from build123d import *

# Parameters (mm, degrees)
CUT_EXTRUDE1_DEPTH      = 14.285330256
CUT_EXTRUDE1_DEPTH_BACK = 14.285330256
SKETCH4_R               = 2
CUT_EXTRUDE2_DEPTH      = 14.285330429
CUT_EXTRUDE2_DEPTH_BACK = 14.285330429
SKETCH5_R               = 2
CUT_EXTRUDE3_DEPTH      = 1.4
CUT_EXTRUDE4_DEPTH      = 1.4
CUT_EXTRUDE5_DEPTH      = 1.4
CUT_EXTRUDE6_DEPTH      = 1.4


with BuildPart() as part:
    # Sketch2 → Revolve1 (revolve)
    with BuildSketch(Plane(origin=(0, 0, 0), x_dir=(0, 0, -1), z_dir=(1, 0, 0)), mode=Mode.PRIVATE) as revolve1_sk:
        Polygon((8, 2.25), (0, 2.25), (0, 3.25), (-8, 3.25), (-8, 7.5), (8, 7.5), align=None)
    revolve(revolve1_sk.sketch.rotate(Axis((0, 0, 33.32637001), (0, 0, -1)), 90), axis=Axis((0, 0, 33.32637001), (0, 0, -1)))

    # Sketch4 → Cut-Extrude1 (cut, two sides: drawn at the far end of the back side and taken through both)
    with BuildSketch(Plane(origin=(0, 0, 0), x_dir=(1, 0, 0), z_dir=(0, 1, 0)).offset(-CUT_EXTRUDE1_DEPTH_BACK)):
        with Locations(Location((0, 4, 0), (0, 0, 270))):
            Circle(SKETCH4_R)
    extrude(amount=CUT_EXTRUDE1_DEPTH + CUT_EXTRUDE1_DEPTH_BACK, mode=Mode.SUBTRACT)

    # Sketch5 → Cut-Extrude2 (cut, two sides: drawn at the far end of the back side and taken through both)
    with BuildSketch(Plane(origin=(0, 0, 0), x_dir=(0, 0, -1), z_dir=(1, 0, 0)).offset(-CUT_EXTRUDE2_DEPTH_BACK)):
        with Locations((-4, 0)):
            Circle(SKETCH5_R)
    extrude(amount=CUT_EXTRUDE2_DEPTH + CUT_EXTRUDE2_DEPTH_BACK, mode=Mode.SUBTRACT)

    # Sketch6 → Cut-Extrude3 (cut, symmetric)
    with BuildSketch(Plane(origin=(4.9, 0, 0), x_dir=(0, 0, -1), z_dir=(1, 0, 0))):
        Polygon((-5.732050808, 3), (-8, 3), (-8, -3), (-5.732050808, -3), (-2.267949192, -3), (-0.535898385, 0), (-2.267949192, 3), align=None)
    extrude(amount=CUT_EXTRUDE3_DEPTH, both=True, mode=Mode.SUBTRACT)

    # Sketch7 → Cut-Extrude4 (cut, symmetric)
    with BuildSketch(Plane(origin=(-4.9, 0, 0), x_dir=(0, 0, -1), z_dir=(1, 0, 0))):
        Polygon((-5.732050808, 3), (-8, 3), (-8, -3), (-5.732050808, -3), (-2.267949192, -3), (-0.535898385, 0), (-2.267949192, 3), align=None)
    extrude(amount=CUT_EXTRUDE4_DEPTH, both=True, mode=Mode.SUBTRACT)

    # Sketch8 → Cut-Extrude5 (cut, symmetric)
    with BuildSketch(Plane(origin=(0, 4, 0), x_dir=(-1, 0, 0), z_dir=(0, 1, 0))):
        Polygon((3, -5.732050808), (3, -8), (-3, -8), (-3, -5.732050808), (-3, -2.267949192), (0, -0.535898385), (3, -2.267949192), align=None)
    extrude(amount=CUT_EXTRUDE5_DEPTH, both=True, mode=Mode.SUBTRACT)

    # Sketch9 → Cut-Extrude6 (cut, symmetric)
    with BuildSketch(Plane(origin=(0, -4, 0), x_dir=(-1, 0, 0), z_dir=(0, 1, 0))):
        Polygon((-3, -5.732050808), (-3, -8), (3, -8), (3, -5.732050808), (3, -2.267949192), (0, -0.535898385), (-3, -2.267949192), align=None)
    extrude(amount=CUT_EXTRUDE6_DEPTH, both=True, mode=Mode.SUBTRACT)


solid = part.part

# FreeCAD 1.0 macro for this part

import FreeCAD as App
import Part
import Sketcher
from FreeCAD import Vector
Q = App.Units.Quantity


def add_polygon(sketch, points):
    """Adds a closed chain of lines whose ends are joined by coincident constraints."""
    first, n = sketch.GeometryCount, len(points)
    for a, b in zip(points, points[1:] + points[:1]):
        sketch.addGeometry(Part.LineSegment(App.Vector(*a, 0), App.Vector(*b, 0)), False)
    for i in range(n):
        sketch.addConstraint(Sketcher.Constraint("Coincident", first + i, 2, first + (i + 1) % n, 1))

doc = App.newDocument("Part")
body = doc.addObject("PartDesign::Body", "Body")

# Sketch on YZ plane
sketch1 = body.newObject("Sketcher::SketchObject", "Sketch")
sketch1.AttachmentSupport = (doc.getObject("YZ_Plane"), [""])
sketch1.MapMode = "FlatFace"
add_polygon(sketch1, [(2.2, 0), (2.2, -8), (7.5, -8), (7.5, 8), (3.2, 8), (3.2, 0)])  # lines 0-5
sketch1.addConstraint([
    Sketcher.Constraint("Vertical", 0),
    Sketcher.Constraint("Horizontal", 1),
    Sketcher.Constraint("Vertical", 2),
    Sketcher.Constraint("Horizontal", 3),
    Sketcher.Constraint("Vertical", 4),
    Sketcher.Constraint("Horizontal", 5),
    Sketcher.Constraint("PointOnObject", 4, 2, -1),
    Sketcher.Constraint("Equal", 0, 4),
    Sketcher.Constraint("DistanceX", 5, 2, 5, 1, 1.0),
    Sketcher.Constraint("DistanceY", 0, 2, 0, 1, 8.0),
    Sketcher.Constraint("DistanceX", 1, 1, 1, 2, 5.25),
    Sketcher.Constraint("DistanceX", -1, 1, 1, 2, 7.5),
])
revolution = body.newObject("PartDesign::Revolution", "Revolution")
revolution.Profile = sketch1
revolution.ReferenceAxis = (sketch1, ["V_Axis"])
revolution.Angle = 360

# Sketch on XZ plane
sketch2 = body.newObject("Sketcher::SketchObject", "Sketch001")
sketch2.AttachmentSupport = (doc.getObject("XZ_Plane"), [""])
sketch2.MapMode = "FlatFace"
sketch2.addGeometry(Part.Circle(Vector(0, -4, 0), Vector(0, 0, 1), 2), False)
sketch2.addConstraint([
    Sketcher.Constraint("PointOnObject", 0, 3, -2),
    Sketcher.Constraint("Diameter", 0, 4.0),
    Sketcher.Constraint("DistanceY", 0, 3, -1, 1, 4.0),
])
pocket1 = body.newObject("PartDesign::Pocket", "Pocket")
pocket1.Profile = sketch2
pocket1.Type = "ThroughAll"
pocket1.Midplane = True

# Sketch on YZ plane
sketch3 = body.newObject("Sketcher::SketchObject", "Sketch002")
sketch3.AttachmentSupport = (doc.getObject("YZ_Plane"), [""])
sketch3.MapMode = "FlatFace"
sketch3.addGeometry(Part.Circle(Vector(0, 4, 0), Vector(0, 0, 1), 2), False)
sketch3.addConstraint([
    Sketcher.Constraint("PointOnObject", 0, 3, -2),
    Sketcher.Constraint("Diameter", 0, 4.0),
    Sketcher.Constraint("DistanceY", -1, 1, 0, 3, 4.0),
])
pocket2 = body.newObject("PartDesign::Pocket", "Pocket001")
pocket2.Profile = sketch3
pocket2.Type = "ThroughAll"
pocket2.Midplane = True

# Sketch on YZ plane
sketch4 = body.newObject("Sketcher::SketchObject", "Sketch003")
sketch4.AttachmentSupport = (doc.getObject("YZ_Plane"), [""])
sketch4.MapMode = "FlatFace"
sketch4.AttachmentOffset = App.Placement(Vector(0, 0, 4.9), App.Rotation())
add_polygon(sketch4, [(3, 8), (-3, 8), (-3, 2.3), (0, 0.5), (3, 2.3)])  # lines 0-4
sketch4.addConstraint([
    Sketcher.Constraint("Horizontal", 0),
    Sketcher.Constraint("Vertical", 1),
    Sketcher.Constraint("Vertical", 4),
    Sketcher.Constraint("Symmetric", 1, 2, 3, 2, -2),
    Sketcher.Constraint("PointOnObject", 2, 2, -2),
    Sketcher.Constraint("DistanceX", 0, 2, 0, 1, 6.0),
    Sketcher.Constraint("Angle", 2, Q("-30 deg")),
    Sketcher.Constraint("DistanceY", -1, 1, 0, 2, 8.0),
    Sketcher.Constraint("DistanceY", 1, 2, 1, 1, 5.732051),
])
pocket3 = body.newObject("PartDesign::Pocket", "Pocket002")
pocket3.Profile = sketch4
pocket3.Length = 2.8
pocket3.Midplane = True

# Sketch on YZ plane
sketch5 = body.newObject("Sketcher::SketchObject", "Sketch004")
sketch5.AttachmentSupport = (doc.getObject("YZ_Plane"), [""])
sketch5.MapMode = "FlatFace"
sketch5.AttachmentOffset = App.Placement(Vector(0, 0, -4.9), App.Rotation())
add_polygon(sketch5, [(3, 8), (-3, 8), (-3, 2.3), (0, 0.5), (3, 2.3)])  # lines 0-4
sketch5.addConstraint([
    Sketcher.Constraint("Horizontal", 0),
    Sketcher.Constraint("Vertical", 1),
    Sketcher.Constraint("Vertical", 4),
    Sketcher.Constraint("Symmetric", 1, 2, 3, 2, -2),
    Sketcher.Constraint("PointOnObject", 2, 2, -2),
    Sketcher.Constraint("DistanceX", 0, 2, 0, 1, 6.0),
    Sketcher.Constraint("Angle", 2, Q("-30 deg")),
    Sketcher.Constraint("DistanceY", -1, 1, 0, 2, 8.0),
    Sketcher.Constraint("DistanceY", 1, 2, 1, 1, 5.732051),
])
pocket4 = body.newObject("PartDesign::Pocket", "Pocket003")
pocket4.Profile = sketch5
pocket4.Length = 2.8
pocket4.Midplane = True

# Sketch on XZ plane
sketch6 = body.newObject("Sketcher::SketchObject", "Sketch005")
sketch6.AttachmentSupport = (doc.getObject("XZ_Plane"), [""])
sketch6.MapMode = "FlatFace"
sketch6.AttachmentOffset = App.Placement(Vector(0, 0, -4), App.Rotation())
add_polygon(sketch6, [(-3, -8), (-3, -2.3), (0, -0.5), (3, -2.3), (3, -8)])  # lines 0-4
sketch6.addConstraint([
    Sketcher.Constraint("Vertical", 0),
    Sketcher.Constraint("Vertical", 3),
    Sketcher.Constraint("Horizontal", 4),
    Sketcher.Constraint("Symmetric", 0, 2, 2, 2, -2),
    Sketcher.Constraint("PointOnObject", 1, 2, -2),
    Sketcher.Constraint("DistanceX", 4, 2, 4, 1, 6.0),
    Sketcher.Constraint("Angle", 1, Q("30 deg")),
    Sketcher.Constraint("DistanceY", 3, 2, -1, 1, 8.0),
    Sketcher.Constraint("DistanceY", 0, 1, 0, 2, 5.732051),
])
pocket5 = body.newObject("PartDesign::Pocket", "Pocket004")
pocket5.Profile = sketch6
pocket5.Length = 2.8
pocket5.Midplane = True

# Sketch on XZ plane
sketch7 = body.newObject("Sketcher::SketchObject", "Sketch006")
sketch7.AttachmentSupport = (doc.getObject("XZ_Plane"), [""])
sketch7.MapMode = "FlatFace"
sketch7.AttachmentOffset = App.Placement(Vector(0, 0, 4), App.Rotation())
add_polygon(sketch7, [(3, -8), (-3, -8), (-3, -2.3), (0, -0.5), (3, -2.3)])  # lines 0-4
sketch7.addConstraint([
    Sketcher.Constraint("Horizontal", 0),
    Sketcher.Constraint("Vertical", 1),
    Sketcher.Constraint("Vertical", 4),
    Sketcher.Constraint("Symmetric", 1, 2, 3, 2, -2),
    Sketcher.Constraint("PointOnObject", 2, 2, -2),
    Sketcher.Constraint("DistanceX", 0, 2, 0, 1, 6.0),
    Sketcher.Constraint("Angle", 2, Q("30 deg")),
    Sketcher.Constraint("DistanceY", 0, 2, -1, 1, 8.0),
    Sketcher.Constraint("DistanceY", 1, 1, 1, 2, 5.732051),
])
pocket6 = body.newObject("PartDesign::Pocket", "Pocket005")
pocket6.Profile = sketch7
pocket6.Length = 2.8
pocket6.Midplane = True

doc.recompute()
